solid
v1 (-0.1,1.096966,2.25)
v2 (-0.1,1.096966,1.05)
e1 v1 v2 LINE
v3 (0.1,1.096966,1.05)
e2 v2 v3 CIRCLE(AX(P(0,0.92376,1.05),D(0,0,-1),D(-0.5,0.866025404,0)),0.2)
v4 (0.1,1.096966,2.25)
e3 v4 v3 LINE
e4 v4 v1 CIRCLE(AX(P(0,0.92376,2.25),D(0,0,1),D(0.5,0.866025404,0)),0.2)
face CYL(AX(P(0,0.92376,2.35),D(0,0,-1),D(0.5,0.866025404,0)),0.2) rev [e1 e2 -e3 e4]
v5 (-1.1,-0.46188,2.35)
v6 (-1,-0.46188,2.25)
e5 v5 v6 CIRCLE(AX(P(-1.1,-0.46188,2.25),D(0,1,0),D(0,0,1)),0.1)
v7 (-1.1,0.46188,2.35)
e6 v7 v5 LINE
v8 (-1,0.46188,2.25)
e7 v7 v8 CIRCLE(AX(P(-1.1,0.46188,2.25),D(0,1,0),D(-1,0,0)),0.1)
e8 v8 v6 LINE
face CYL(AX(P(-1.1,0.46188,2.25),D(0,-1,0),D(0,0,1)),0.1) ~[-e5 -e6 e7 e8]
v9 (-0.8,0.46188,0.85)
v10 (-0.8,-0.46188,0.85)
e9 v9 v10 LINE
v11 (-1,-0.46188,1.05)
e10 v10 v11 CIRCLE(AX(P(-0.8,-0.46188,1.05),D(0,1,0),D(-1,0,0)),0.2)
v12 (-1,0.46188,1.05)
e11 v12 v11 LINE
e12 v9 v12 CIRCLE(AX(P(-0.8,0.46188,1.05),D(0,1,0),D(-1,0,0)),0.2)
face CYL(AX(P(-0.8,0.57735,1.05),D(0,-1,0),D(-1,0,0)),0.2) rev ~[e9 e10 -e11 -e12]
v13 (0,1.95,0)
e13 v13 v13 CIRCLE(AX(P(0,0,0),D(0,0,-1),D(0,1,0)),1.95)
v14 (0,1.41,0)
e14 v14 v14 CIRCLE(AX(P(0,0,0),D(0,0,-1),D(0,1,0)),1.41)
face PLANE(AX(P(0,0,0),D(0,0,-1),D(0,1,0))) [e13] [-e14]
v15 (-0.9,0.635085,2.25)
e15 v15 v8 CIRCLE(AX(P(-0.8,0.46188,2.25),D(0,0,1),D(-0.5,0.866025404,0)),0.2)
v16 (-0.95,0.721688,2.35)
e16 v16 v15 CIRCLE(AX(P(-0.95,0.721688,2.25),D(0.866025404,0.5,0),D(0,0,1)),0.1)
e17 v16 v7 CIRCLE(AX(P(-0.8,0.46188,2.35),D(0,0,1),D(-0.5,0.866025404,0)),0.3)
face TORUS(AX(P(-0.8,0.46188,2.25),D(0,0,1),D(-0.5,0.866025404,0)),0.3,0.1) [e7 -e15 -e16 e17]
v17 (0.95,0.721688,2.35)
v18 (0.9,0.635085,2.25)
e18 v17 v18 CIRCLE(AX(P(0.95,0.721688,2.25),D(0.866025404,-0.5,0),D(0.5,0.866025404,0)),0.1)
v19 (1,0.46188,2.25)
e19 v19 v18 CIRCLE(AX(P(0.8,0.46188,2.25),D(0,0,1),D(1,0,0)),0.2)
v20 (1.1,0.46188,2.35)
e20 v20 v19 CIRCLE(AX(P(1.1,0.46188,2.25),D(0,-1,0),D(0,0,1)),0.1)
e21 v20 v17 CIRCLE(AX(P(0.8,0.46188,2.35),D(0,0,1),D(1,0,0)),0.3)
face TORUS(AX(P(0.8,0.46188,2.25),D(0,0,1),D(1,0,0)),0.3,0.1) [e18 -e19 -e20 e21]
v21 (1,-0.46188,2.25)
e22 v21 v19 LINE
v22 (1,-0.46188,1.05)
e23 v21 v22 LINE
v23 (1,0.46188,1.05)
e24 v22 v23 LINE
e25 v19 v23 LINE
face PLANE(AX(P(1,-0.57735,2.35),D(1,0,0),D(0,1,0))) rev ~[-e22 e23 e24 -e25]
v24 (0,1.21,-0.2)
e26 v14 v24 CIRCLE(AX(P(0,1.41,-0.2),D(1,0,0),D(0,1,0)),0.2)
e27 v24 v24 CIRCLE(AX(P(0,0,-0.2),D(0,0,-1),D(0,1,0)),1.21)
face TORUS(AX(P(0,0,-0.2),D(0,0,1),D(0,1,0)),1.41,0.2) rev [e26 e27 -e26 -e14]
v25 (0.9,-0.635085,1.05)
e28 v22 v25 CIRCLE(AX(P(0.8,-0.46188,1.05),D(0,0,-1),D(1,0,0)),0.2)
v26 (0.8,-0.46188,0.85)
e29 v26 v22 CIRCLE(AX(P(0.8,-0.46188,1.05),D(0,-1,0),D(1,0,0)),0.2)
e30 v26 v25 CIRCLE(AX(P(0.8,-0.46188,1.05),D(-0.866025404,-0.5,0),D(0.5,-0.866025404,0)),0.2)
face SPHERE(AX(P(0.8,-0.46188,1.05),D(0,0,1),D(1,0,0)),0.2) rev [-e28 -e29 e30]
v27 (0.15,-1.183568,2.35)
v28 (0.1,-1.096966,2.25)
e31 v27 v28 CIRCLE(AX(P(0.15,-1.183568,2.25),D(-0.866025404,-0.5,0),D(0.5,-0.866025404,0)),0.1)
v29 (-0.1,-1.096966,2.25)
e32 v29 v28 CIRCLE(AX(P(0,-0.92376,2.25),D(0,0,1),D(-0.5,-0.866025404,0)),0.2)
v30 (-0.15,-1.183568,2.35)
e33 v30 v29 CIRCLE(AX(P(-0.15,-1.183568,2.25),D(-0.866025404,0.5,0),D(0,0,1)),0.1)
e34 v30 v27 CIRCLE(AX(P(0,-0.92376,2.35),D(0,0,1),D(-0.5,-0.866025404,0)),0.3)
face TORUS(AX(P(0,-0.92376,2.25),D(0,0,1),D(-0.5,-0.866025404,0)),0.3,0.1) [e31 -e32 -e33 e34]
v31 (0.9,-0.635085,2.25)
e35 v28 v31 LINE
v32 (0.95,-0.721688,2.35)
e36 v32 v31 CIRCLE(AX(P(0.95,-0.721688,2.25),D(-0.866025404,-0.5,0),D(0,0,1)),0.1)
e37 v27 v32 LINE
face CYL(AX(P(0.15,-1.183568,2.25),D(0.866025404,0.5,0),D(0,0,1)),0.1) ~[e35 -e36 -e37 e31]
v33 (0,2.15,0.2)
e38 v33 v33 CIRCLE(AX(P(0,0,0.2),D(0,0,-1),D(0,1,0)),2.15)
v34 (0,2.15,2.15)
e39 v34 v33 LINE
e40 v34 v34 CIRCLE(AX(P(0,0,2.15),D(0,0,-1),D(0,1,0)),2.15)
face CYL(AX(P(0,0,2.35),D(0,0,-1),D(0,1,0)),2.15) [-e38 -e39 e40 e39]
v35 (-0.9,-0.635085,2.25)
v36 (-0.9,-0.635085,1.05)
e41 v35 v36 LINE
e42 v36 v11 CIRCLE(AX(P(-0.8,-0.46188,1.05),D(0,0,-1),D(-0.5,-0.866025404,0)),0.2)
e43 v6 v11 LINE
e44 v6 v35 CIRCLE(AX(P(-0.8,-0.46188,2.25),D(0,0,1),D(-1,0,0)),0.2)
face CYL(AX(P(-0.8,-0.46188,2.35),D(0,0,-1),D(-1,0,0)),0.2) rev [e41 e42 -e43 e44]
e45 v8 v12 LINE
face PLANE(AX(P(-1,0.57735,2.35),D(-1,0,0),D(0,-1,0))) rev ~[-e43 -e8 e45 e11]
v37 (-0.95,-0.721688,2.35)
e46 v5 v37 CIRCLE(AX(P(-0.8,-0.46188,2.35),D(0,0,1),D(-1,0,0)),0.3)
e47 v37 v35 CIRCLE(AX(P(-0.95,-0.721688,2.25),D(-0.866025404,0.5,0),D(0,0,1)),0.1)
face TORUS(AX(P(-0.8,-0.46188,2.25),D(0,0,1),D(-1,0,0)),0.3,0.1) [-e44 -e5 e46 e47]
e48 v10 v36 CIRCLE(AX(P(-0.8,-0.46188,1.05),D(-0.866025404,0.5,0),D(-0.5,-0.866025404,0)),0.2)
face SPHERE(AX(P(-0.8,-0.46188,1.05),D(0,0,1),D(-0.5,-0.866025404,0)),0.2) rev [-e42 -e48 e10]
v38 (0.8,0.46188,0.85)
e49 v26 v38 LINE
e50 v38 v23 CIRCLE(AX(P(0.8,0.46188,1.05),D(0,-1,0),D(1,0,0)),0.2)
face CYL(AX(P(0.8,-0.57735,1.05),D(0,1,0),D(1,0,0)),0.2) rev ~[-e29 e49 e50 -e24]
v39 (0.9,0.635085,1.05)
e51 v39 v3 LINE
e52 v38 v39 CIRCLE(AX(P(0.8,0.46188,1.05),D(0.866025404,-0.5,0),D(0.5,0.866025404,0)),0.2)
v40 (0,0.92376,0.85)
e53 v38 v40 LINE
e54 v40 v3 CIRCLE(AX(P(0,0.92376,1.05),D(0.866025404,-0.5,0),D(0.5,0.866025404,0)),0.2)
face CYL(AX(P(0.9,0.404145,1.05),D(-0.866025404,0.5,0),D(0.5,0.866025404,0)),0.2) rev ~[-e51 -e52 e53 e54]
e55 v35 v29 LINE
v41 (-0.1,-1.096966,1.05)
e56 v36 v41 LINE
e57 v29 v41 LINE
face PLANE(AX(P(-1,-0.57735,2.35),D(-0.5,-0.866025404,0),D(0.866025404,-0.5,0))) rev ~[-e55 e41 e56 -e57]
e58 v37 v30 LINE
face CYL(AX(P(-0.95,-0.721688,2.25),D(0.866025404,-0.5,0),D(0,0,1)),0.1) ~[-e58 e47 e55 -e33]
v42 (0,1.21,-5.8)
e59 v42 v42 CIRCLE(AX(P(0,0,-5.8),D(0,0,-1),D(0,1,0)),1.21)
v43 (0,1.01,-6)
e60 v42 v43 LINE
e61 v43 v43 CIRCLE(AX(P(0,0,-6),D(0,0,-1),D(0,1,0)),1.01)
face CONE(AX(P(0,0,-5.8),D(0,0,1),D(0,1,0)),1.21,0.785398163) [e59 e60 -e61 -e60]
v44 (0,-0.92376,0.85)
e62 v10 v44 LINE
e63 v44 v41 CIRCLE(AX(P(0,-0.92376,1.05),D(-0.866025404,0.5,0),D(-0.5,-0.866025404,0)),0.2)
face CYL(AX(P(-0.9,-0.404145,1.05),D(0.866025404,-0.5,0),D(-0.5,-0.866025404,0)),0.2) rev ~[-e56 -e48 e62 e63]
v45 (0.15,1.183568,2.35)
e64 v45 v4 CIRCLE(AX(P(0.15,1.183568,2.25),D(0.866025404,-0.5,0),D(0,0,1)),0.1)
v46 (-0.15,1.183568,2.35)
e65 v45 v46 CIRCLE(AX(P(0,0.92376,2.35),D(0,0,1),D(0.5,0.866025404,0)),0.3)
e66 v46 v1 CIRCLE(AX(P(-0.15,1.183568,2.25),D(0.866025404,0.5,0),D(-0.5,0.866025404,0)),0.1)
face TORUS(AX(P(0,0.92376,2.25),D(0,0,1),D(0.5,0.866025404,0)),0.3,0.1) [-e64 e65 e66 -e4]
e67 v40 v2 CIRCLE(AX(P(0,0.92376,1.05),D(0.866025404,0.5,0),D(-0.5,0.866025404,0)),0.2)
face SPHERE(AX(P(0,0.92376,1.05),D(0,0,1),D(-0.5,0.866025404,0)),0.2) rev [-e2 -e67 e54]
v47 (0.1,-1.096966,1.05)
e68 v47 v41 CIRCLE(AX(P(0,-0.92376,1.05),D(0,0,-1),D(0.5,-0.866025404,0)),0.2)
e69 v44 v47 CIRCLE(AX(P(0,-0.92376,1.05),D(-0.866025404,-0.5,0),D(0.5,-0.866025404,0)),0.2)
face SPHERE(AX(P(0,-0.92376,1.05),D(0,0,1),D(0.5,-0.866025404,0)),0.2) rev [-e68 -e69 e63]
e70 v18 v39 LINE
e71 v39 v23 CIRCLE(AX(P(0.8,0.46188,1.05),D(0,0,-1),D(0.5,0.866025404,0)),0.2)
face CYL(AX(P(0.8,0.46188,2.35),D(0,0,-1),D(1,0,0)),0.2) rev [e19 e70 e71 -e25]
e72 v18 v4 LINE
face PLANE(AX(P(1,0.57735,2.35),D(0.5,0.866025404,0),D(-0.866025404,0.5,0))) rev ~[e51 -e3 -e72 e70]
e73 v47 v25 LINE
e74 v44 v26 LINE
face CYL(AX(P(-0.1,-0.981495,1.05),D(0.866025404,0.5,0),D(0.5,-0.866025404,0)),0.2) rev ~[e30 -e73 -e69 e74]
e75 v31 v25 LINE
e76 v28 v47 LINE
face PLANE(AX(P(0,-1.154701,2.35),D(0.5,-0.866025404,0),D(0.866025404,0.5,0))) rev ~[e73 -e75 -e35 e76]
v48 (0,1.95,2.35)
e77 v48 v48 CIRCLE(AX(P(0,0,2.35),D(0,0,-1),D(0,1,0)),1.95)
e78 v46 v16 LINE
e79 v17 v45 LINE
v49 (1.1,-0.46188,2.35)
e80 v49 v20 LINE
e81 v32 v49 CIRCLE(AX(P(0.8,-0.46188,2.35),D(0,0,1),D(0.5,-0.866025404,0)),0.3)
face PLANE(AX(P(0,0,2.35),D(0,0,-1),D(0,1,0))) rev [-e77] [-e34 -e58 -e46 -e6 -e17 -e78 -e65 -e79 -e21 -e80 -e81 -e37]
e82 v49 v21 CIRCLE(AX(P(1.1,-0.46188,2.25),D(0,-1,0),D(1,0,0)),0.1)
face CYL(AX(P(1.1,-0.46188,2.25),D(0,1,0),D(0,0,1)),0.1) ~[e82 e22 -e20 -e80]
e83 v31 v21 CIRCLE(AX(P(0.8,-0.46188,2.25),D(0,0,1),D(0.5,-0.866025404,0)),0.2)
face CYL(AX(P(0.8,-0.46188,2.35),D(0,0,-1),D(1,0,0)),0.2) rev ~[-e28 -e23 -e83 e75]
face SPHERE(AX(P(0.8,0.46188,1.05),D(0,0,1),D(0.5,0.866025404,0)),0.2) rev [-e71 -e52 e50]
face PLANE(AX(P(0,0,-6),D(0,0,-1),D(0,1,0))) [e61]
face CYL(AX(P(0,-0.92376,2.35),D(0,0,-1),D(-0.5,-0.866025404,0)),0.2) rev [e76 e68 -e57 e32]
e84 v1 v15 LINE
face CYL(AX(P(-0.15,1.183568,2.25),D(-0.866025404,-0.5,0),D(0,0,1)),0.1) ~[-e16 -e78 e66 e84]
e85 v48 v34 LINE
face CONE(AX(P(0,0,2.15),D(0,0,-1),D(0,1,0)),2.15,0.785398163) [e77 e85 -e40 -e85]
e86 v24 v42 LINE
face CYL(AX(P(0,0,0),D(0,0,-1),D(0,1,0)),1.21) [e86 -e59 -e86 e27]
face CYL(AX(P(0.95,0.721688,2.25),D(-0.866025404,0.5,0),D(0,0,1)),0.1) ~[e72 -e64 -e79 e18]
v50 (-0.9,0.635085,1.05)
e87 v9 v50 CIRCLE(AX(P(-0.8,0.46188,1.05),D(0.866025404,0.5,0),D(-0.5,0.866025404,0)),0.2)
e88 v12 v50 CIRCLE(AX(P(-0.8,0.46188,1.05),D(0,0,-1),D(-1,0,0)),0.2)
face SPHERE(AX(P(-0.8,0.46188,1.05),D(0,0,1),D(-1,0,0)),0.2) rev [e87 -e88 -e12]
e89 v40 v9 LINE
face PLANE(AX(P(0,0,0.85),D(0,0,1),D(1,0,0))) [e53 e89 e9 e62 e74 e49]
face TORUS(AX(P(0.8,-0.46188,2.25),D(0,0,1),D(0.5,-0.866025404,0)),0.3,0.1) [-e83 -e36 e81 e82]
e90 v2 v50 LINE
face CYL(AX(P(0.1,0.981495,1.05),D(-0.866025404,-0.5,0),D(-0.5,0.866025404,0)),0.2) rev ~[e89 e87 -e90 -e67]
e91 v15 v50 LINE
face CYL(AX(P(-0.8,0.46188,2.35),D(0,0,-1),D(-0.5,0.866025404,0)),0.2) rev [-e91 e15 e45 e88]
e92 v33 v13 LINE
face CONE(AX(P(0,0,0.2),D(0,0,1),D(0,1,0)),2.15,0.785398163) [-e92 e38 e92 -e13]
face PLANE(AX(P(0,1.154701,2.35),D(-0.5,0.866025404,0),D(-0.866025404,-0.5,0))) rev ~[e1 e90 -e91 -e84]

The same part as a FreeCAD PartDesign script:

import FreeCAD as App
import Part
import Sketcher
from FreeCAD import Vector
Q = App.Units.Quantity


def edges_at(feature, points):
    """Names of the edges that pass closest to the given points."""
    edges = feature.Shape.Edges
    near = lambda p: min(range(len(edges)), key=lambda i: edges[i].distToShape(Part.Vertex(*p))[0])
    return sorted({f"Edge{near(p) + 1}" for p in points})

doc = App.newDocument("Part")
params = doc.addObject("Spreadsheet::Sheet", "Params")
for row, (alias, value) in enumerate([
    ("sketch1_height", "6 mm"),
    ("sketch1_width", "2.15 mm"),
    ("sketch1_width2", "1.21 mm"),
    ("sketch1_height2", "8.35 mm"),
    ("revolution_angle", "360 deg"),
    ("pocket1_length", "1.5 mm"),
    ("chamfer_size", "0.2 mm"),
    ("fillet_radius", "0.2 mm"),
    ("fillet2_radius", "0.1 mm"),
], start=1):
    params.set(f"A{row}", alias)
    params.set(f"B{row}", "=" + value)
    params.setAlias(f"B{row}", alias)

body = doc.addObject("PartDesign::Body", "Body")

sketch1 = body.newObject("Sketcher::SketchObject", "Sketch")
sketch1.AttachmentSupport = (doc.getObject("YZ_Plane"), [""])
sketch1.MapMode = "FlatFace"
sketch1.addGeometry(Part.LineSegment(Vector(2.1, 2.4, 0), Vector(0, 2.4, 0)), False)
sketch1.addGeometry(Part.LineSegment(Vector(0, 2.4, 0), Vector(0, -6, 0)), False)
sketch1.addGeometry(Part.LineSegment(Vector(0, -6, 0), Vector(1.2, -6, 0)), False)
sketch1.addGeometry(Part.LineSegment(Vector(1.2, -6, 0), Vector(1.2, 0, 0)), False)
sketch1.addGeometry(Part.LineSegment(Vector(1.2, 0, 0), Vector(2.1, 0, 0)), False)
sketch1.addGeometry(Part.LineSegment(Vector(2.1, 0, 0), Vector(2.1, 2.4, 0)), False)
sketch1.addConstraint(Sketcher.Constraint("Coincident", 0, 2, 1, 1))
sketch1.addConstraint(Sketcher.Constraint("Coincident", 1, 2, 2, 1))
sketch1.addConstraint(Sketcher.Constraint("Coincident", 2, 2, 3, 1))
sketch1.addConstraint(Sketcher.Constraint("Coincident", 3, 2, 4, 1))
sketch1.addConstraint(Sketcher.Constraint("Coincident", 4, 2, 5, 1))
sketch1.addConstraint(Sketcher.Constraint("Coincident", 5, 2, 0, 1))
sketch1.addConstraint(Sketcher.Constraint("Horizontal", 0))
sketch1.addConstraint(Sketcher.Constraint("Vertical", 1))
sketch1.addConstraint(Sketcher.Constraint("Horizontal", 2))
sketch1.addConstraint(Sketcher.Constraint("Vertical", 3))
sketch1.addConstraint(Sketcher.Constraint("Horizontal", 4))
sketch1.addConstraint(Sketcher.Constraint("Vertical", 5))
sketch1.addConstraint(Sketcher.Constraint("PointOnObject", 0, 2, -2))
sketch1.addConstraint(Sketcher.Constraint("PointOnObject", 3, 2, -1))
sketch1.addConstraint(Sketcher.Constraint("DistanceY", 3, 1, 3, 2, 6.0))
sketch1.addConstraint(Sketcher.Constraint("DistanceX", 0, 2, 0, 1, 2.15))
sketch1.addConstraint(Sketcher.Constraint("DistanceX", 2, 1, 2, 2, 1.21))
sketch1.addConstraint(Sketcher.Constraint("DistanceY", 1, 2, 1, 1, 8.35))
sketch1.setExpression("Constraints[14]", "Params.sketch1_height")
sketch1.setExpression("Constraints[15]", "Params.sketch1_width")
sketch1.setExpression("Constraints[16]", "Params.sketch1_width2")
sketch1.setExpression("Constraints[17]", "Params.sketch1_height2")
revolution = body.newObject("PartDesign::Revolution", "Revolution")
revolution.Profile = sketch1
revolution.ReferenceAxis = (sketch1, ["V_Axis"])
revolution.setExpression("Angle", "Params.revolution_angle")

sketch2 = body.newObject("Sketcher::SketchObject", "Sketch001")
sketch2.AttachmentSupport = (doc.getObject("XY_Plane"), [""])
sketch2.MapMode = "FlatFace"
sketch2.AttachmentOffset = App.Placement(Vector(0, 0, 2.35), App.Rotation())
sketch2.addGeometry(Part.LineSegment(Vector(1, -0.6, 0), Vector(1, 0.6, 0)), False)
sketch2.addGeometry(Part.LineSegment(Vector(1, 0.6, 0), Vector(0, 1.2, 0)), False)
sketch2.addGeometry(Part.LineSegment(Vector(0, 1.2, 0), Vector(-1, 0.6, 0)), False)
sketch2.addGeometry(Part.LineSegment(Vector(-1, 0.6, 0), Vector(-1, -0.6, 0)), False)
sketch2.addGeometry(Part.LineSegment(Vector(-1, -0.6, 0), Vector(0, -1.2, 0)), False)
sketch2.addGeometry(Part.LineSegment(Vector(0, -1.2, 0), Vector(1, -0.6, 0)), False)
sketch2.addConstraint(Sketcher.Constraint("Coincident", 0, 2, 1, 1))
sketch2.addConstraint(Sketcher.Constraint("Coincident", 1, 2, 2, 1))
sketch2.addConstraint(Sketcher.Constraint("Coincident", 2, 2, 3, 1))
sketch2.addConstraint(Sketcher.Constraint("Coincident", 3, 2, 4, 1))
sketch2.addConstraint(Sketcher.Constraint("Coincident", 4, 2, 5, 1))
sketch2.addConstraint(Sketcher.Constraint("Coincident", 5, 2, 0, 1))
sketch2.addConstraint(Sketcher.Constraint("Vertical", 0))
sketch2.addConstraint(Sketcher.Constraint("Vertical", 3))
sketch2.addConstraint(Sketcher.Constraint("Symmetric", 0, 2, 3, 2, -1, 1))
sketch2.addConstraint(Sketcher.Constraint("Symmetric", 1, 2, 4, 2, -1, 1))
sketch2.addConstraint(Sketcher.Constraint("PointOnObject", 1, 2, -2))
sketch2.addConstraint(Sketcher.Constraint("Parallel", 2, 5))
sketch2.addConstraint(Sketcher.Constraint("Horizontal", 0, 2, 2, 2))
sketch2.addConstraint(Sketcher.Constraint("Angle", 1, Q("150 deg")))
sketch2.addConstraint(Sketcher.Constraint("DistanceX", -1, 1, 0, 2, 1.0))
sketch2.addConstraint(Sketcher.Constraint("DistanceY", 0, 1, 0, 2, 1.154701))
pocket1 = body.newObject("PartDesign::Pocket", "Pocket")
pocket1.Profile = sketch2
pocket1.setExpression("Length", "Params.pocket1_length")
doc.recompute()

chamfer = body.newObject("PartDesign::Chamfer", "Chamfer")
chamfer.Base = (pocket1, edges_at(pocket1, [(0, -1.21, -6), (0, -2.15, 0), (0, -2.15, 2.35)]))
chamfer.setExpression("Size", "Params.chamfer_size")
doc.recompute()

fillet = body.newObject("PartDesign::Fillet", "Fillet")
fillet.Base = (chamfer, edges_at(chamfer, [
    (0.5, -0.866, 0.85),
    (1, -0.577, 1.6),
    (-0.5, -0.866, 0.85),
    (0, -1.155, 1.6),
    (-1, 0, 0.85),
    (-1, -0.577, 1.6),
    (-0.5, 0.866, 0.85),
    (-1, 0.577, 1.6),
    (0.5, 0.866, 0.85),
    (0, 1.155, 1.6),
    (1, 0, 0.85),
    (1, 0.577, 1.6),
    (0, -1.21, 0),
]))
fillet.setExpression("Radius", "Params.fillet_radius")
doc.recompute()

fillet2 = body.newObject("PartDesign::Fillet", "Fillet001")
fillet2.Base = (fillet, edges_at(fillet, [
    (-0.5, -0.866, 2.35),
    (-1, 0, 2.35),
    (-0.5, 0.866, 2.35),
    (0.5, 0.866, 2.35),
    (1, 0, 2.35),
    (0.5, -0.866, 2.35),
    (-0.973, -0.562, 2.35),
    (0, -1.124, 2.35),
    (0.973, -0.562, 2.35),
    (0.973, 0.562, 2.35),
    (0, 1.124, 2.35),
    (-0.973, 0.562, 2.35),
]))
fillet2.setExpression("Radius", "Params.fillet2_radius")

doc.recompute()
